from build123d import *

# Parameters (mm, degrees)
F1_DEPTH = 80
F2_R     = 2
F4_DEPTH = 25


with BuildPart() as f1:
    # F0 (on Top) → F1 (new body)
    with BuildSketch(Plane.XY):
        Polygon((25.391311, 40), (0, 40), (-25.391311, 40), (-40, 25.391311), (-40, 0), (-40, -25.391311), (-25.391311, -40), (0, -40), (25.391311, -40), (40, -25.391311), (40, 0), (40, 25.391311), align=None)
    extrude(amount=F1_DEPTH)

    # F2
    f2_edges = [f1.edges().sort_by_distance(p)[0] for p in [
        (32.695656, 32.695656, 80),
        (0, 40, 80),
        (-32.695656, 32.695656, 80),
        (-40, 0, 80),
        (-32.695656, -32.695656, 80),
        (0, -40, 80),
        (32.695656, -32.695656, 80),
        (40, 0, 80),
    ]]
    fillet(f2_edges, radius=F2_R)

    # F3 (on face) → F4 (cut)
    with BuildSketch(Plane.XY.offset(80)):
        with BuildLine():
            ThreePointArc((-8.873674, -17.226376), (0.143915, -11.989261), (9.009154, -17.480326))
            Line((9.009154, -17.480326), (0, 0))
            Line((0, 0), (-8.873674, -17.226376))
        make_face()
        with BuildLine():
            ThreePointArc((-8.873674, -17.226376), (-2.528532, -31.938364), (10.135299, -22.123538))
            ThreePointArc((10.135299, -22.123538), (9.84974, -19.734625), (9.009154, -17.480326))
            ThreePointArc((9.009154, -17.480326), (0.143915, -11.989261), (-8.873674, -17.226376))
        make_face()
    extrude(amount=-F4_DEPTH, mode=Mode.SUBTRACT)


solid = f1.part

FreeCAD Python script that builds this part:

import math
import FreeCAD as App
import Part
import Sketcher


def edges_at(feature, points):
    """Names of the edges that pass closest to the given points."""
    edges = feature.Shape.Edges
    near = lambda p: min(range(len(edges)), key=lambda i: edges[i].distToShape(Part.Vertex(*p))[0])
    return sorted({f"Edge{near(p) + 1}" for p in points})


def add_polygon(sketch, points):
    """Adds a closed chain of lines whose ends are joined by coincident constraints."""
    first, n = sketch.GeometryCount, len(points)
    for a, b in zip(points, points[1:] + points[:1]):
        sketch.addGeometry(Part.LineSegment(App.Vector(*a, 0), App.Vector(*b, 0)), False)
    for i in range(n):
        sketch.addConstraint(Sketcher.Constraint("Coincident", first + i, 2, first + (i + 1) % n, 1))

doc = App.newDocument("Part")
body = doc.addObject("PartDesign::Body", "Body")

# Sketch on XY plane
sketch1 = body.newObject("Sketcher::SketchObject", "Sketch")
sketch1.AttachmentSupport = (doc.getObject("XY_Plane"), [""])
sketch1.MapMode = "FlatFace"
add_polygon(sketch1, [(25, 40), (-25, 40), (-40, 25), (-40, -25), (-25, -40), (25, -40), (40, -25), (40, 25)])  # lines 0-7
sketch1.addConstraint([
    Sketcher.Constraint("Horizontal", 0),
    Sketcher.Constraint("Vertical", 2),
    Sketcher.Constraint("Horizontal", 4),
    Sketcher.Constraint("Vertical", 6),
    Sketcher.Constraint("Symmetric", 0, 2, 4, 2, -1, 1),
    Sketcher.Constraint("Symmetric", 1, 2, 5, 2, -1, 1),
    Sketcher.Constraint("Perpendicular", 1, 3),
    Sketcher.Constraint("Perpendicular", 5, 7),
    Sketcher.Constraint("Horizontal", 2, 2, 5, 2),
    Sketcher.Constraint("Horizontal", 1, 2, 6, 2),
    Sketcher.Constraint("Vertical", 0, 2, 3, 2),
    Sketcher.Constraint("Equal", 4, 2),
    Sketcher.Constraint("DistanceY", -1, 1, 0, 2, 40.0),
    Sketcher.Constraint("DistanceX", 0, 2, 0, 1, 50.782622),
])
pad1 = body.newObject("PartDesign::Pad", "Pad")
pad1.Profile = sketch1
pad1.Length = 80
doc.recompute()

fillet = body.newObject("PartDesign::Fillet", "Fillet")
fillet.Base = (pad1, edges_at(pad1, [
    (32.696, 32.696, 80),
    (0, 40, 80),
    (-32.696, 32.696, 80),
    (-40, 0, 80),
    (-32.696, -32.696, 80),
    (0, -40, 80),
    (32.696, -32.696, 80),
    (40, 0, 80),
]))
fillet.Radius = 2

# Sketch on XY plane
sketch2 = body.newObject("Sketcher::SketchObject", "Sketch001")
sketch2.AttachmentSupport = (doc.getObject("XY_Plane"), [""])
sketch2.MapMode = "FlatFace"
sketch2.AttachmentOffset = App.Placement(App.Vector(0, 0, 80), App.Rotation())
sketch2.addGeometry([
    Part.LineSegment(App.Vector(9, -17.5, 0), App.Vector(0, 0, 0)),
    Part.LineSegment(App.Vector(0, 0, 0), App.Vector(-8.9, -17.2, 0)),
    Part.ArcOfCircle(Part.Circle(App.Vector(0, -22.1, 0), App.Vector(0, 0, 1), 10.1), math.radians(151), math.radians(360)),
    Part.ArcOfCircle(Part.Circle(App.Vector(0, -22.1, 0), App.Vector(0, 0, 1), 10.1), math.radians(0), math.radians(27)),
], False)
sketch2.addConstraint([
    Sketcher.Constraint("Coincident", 0, 2, 1, 1),
    Sketcher.Constraint("Coincident", 1, 2, 2, 1),
    Sketcher.Constraint("Tangent", 2, 2, 3, 1),
    Sketcher.Constraint("Tangent", 3, 2, 0, 1),
    Sketcher.Constraint("Coincident", 0, 2, -1, 1),
    Sketcher.Constraint("PointOnObject", 2, 3, -2),
    Sketcher.Constraint("Horizontal", 3, 3, 2, 2),
    Sketcher.Constraint("Radius", 2, 10.135299),
    Sketcher.Constraint("Radius", 3, 10.135292),
    Sketcher.Constraint("DistanceY", 2, 2, -1, 1, 22.123538),
    Sketcher.Constraint("DistanceY", 2, 3, 1, 2, 4.897162),
])
pocket1 = body.newObject("PartDesign::Pocket", "Pocket")
pocket1.Profile = sketch2
pocket1.Length = 25

doc.recompute()
